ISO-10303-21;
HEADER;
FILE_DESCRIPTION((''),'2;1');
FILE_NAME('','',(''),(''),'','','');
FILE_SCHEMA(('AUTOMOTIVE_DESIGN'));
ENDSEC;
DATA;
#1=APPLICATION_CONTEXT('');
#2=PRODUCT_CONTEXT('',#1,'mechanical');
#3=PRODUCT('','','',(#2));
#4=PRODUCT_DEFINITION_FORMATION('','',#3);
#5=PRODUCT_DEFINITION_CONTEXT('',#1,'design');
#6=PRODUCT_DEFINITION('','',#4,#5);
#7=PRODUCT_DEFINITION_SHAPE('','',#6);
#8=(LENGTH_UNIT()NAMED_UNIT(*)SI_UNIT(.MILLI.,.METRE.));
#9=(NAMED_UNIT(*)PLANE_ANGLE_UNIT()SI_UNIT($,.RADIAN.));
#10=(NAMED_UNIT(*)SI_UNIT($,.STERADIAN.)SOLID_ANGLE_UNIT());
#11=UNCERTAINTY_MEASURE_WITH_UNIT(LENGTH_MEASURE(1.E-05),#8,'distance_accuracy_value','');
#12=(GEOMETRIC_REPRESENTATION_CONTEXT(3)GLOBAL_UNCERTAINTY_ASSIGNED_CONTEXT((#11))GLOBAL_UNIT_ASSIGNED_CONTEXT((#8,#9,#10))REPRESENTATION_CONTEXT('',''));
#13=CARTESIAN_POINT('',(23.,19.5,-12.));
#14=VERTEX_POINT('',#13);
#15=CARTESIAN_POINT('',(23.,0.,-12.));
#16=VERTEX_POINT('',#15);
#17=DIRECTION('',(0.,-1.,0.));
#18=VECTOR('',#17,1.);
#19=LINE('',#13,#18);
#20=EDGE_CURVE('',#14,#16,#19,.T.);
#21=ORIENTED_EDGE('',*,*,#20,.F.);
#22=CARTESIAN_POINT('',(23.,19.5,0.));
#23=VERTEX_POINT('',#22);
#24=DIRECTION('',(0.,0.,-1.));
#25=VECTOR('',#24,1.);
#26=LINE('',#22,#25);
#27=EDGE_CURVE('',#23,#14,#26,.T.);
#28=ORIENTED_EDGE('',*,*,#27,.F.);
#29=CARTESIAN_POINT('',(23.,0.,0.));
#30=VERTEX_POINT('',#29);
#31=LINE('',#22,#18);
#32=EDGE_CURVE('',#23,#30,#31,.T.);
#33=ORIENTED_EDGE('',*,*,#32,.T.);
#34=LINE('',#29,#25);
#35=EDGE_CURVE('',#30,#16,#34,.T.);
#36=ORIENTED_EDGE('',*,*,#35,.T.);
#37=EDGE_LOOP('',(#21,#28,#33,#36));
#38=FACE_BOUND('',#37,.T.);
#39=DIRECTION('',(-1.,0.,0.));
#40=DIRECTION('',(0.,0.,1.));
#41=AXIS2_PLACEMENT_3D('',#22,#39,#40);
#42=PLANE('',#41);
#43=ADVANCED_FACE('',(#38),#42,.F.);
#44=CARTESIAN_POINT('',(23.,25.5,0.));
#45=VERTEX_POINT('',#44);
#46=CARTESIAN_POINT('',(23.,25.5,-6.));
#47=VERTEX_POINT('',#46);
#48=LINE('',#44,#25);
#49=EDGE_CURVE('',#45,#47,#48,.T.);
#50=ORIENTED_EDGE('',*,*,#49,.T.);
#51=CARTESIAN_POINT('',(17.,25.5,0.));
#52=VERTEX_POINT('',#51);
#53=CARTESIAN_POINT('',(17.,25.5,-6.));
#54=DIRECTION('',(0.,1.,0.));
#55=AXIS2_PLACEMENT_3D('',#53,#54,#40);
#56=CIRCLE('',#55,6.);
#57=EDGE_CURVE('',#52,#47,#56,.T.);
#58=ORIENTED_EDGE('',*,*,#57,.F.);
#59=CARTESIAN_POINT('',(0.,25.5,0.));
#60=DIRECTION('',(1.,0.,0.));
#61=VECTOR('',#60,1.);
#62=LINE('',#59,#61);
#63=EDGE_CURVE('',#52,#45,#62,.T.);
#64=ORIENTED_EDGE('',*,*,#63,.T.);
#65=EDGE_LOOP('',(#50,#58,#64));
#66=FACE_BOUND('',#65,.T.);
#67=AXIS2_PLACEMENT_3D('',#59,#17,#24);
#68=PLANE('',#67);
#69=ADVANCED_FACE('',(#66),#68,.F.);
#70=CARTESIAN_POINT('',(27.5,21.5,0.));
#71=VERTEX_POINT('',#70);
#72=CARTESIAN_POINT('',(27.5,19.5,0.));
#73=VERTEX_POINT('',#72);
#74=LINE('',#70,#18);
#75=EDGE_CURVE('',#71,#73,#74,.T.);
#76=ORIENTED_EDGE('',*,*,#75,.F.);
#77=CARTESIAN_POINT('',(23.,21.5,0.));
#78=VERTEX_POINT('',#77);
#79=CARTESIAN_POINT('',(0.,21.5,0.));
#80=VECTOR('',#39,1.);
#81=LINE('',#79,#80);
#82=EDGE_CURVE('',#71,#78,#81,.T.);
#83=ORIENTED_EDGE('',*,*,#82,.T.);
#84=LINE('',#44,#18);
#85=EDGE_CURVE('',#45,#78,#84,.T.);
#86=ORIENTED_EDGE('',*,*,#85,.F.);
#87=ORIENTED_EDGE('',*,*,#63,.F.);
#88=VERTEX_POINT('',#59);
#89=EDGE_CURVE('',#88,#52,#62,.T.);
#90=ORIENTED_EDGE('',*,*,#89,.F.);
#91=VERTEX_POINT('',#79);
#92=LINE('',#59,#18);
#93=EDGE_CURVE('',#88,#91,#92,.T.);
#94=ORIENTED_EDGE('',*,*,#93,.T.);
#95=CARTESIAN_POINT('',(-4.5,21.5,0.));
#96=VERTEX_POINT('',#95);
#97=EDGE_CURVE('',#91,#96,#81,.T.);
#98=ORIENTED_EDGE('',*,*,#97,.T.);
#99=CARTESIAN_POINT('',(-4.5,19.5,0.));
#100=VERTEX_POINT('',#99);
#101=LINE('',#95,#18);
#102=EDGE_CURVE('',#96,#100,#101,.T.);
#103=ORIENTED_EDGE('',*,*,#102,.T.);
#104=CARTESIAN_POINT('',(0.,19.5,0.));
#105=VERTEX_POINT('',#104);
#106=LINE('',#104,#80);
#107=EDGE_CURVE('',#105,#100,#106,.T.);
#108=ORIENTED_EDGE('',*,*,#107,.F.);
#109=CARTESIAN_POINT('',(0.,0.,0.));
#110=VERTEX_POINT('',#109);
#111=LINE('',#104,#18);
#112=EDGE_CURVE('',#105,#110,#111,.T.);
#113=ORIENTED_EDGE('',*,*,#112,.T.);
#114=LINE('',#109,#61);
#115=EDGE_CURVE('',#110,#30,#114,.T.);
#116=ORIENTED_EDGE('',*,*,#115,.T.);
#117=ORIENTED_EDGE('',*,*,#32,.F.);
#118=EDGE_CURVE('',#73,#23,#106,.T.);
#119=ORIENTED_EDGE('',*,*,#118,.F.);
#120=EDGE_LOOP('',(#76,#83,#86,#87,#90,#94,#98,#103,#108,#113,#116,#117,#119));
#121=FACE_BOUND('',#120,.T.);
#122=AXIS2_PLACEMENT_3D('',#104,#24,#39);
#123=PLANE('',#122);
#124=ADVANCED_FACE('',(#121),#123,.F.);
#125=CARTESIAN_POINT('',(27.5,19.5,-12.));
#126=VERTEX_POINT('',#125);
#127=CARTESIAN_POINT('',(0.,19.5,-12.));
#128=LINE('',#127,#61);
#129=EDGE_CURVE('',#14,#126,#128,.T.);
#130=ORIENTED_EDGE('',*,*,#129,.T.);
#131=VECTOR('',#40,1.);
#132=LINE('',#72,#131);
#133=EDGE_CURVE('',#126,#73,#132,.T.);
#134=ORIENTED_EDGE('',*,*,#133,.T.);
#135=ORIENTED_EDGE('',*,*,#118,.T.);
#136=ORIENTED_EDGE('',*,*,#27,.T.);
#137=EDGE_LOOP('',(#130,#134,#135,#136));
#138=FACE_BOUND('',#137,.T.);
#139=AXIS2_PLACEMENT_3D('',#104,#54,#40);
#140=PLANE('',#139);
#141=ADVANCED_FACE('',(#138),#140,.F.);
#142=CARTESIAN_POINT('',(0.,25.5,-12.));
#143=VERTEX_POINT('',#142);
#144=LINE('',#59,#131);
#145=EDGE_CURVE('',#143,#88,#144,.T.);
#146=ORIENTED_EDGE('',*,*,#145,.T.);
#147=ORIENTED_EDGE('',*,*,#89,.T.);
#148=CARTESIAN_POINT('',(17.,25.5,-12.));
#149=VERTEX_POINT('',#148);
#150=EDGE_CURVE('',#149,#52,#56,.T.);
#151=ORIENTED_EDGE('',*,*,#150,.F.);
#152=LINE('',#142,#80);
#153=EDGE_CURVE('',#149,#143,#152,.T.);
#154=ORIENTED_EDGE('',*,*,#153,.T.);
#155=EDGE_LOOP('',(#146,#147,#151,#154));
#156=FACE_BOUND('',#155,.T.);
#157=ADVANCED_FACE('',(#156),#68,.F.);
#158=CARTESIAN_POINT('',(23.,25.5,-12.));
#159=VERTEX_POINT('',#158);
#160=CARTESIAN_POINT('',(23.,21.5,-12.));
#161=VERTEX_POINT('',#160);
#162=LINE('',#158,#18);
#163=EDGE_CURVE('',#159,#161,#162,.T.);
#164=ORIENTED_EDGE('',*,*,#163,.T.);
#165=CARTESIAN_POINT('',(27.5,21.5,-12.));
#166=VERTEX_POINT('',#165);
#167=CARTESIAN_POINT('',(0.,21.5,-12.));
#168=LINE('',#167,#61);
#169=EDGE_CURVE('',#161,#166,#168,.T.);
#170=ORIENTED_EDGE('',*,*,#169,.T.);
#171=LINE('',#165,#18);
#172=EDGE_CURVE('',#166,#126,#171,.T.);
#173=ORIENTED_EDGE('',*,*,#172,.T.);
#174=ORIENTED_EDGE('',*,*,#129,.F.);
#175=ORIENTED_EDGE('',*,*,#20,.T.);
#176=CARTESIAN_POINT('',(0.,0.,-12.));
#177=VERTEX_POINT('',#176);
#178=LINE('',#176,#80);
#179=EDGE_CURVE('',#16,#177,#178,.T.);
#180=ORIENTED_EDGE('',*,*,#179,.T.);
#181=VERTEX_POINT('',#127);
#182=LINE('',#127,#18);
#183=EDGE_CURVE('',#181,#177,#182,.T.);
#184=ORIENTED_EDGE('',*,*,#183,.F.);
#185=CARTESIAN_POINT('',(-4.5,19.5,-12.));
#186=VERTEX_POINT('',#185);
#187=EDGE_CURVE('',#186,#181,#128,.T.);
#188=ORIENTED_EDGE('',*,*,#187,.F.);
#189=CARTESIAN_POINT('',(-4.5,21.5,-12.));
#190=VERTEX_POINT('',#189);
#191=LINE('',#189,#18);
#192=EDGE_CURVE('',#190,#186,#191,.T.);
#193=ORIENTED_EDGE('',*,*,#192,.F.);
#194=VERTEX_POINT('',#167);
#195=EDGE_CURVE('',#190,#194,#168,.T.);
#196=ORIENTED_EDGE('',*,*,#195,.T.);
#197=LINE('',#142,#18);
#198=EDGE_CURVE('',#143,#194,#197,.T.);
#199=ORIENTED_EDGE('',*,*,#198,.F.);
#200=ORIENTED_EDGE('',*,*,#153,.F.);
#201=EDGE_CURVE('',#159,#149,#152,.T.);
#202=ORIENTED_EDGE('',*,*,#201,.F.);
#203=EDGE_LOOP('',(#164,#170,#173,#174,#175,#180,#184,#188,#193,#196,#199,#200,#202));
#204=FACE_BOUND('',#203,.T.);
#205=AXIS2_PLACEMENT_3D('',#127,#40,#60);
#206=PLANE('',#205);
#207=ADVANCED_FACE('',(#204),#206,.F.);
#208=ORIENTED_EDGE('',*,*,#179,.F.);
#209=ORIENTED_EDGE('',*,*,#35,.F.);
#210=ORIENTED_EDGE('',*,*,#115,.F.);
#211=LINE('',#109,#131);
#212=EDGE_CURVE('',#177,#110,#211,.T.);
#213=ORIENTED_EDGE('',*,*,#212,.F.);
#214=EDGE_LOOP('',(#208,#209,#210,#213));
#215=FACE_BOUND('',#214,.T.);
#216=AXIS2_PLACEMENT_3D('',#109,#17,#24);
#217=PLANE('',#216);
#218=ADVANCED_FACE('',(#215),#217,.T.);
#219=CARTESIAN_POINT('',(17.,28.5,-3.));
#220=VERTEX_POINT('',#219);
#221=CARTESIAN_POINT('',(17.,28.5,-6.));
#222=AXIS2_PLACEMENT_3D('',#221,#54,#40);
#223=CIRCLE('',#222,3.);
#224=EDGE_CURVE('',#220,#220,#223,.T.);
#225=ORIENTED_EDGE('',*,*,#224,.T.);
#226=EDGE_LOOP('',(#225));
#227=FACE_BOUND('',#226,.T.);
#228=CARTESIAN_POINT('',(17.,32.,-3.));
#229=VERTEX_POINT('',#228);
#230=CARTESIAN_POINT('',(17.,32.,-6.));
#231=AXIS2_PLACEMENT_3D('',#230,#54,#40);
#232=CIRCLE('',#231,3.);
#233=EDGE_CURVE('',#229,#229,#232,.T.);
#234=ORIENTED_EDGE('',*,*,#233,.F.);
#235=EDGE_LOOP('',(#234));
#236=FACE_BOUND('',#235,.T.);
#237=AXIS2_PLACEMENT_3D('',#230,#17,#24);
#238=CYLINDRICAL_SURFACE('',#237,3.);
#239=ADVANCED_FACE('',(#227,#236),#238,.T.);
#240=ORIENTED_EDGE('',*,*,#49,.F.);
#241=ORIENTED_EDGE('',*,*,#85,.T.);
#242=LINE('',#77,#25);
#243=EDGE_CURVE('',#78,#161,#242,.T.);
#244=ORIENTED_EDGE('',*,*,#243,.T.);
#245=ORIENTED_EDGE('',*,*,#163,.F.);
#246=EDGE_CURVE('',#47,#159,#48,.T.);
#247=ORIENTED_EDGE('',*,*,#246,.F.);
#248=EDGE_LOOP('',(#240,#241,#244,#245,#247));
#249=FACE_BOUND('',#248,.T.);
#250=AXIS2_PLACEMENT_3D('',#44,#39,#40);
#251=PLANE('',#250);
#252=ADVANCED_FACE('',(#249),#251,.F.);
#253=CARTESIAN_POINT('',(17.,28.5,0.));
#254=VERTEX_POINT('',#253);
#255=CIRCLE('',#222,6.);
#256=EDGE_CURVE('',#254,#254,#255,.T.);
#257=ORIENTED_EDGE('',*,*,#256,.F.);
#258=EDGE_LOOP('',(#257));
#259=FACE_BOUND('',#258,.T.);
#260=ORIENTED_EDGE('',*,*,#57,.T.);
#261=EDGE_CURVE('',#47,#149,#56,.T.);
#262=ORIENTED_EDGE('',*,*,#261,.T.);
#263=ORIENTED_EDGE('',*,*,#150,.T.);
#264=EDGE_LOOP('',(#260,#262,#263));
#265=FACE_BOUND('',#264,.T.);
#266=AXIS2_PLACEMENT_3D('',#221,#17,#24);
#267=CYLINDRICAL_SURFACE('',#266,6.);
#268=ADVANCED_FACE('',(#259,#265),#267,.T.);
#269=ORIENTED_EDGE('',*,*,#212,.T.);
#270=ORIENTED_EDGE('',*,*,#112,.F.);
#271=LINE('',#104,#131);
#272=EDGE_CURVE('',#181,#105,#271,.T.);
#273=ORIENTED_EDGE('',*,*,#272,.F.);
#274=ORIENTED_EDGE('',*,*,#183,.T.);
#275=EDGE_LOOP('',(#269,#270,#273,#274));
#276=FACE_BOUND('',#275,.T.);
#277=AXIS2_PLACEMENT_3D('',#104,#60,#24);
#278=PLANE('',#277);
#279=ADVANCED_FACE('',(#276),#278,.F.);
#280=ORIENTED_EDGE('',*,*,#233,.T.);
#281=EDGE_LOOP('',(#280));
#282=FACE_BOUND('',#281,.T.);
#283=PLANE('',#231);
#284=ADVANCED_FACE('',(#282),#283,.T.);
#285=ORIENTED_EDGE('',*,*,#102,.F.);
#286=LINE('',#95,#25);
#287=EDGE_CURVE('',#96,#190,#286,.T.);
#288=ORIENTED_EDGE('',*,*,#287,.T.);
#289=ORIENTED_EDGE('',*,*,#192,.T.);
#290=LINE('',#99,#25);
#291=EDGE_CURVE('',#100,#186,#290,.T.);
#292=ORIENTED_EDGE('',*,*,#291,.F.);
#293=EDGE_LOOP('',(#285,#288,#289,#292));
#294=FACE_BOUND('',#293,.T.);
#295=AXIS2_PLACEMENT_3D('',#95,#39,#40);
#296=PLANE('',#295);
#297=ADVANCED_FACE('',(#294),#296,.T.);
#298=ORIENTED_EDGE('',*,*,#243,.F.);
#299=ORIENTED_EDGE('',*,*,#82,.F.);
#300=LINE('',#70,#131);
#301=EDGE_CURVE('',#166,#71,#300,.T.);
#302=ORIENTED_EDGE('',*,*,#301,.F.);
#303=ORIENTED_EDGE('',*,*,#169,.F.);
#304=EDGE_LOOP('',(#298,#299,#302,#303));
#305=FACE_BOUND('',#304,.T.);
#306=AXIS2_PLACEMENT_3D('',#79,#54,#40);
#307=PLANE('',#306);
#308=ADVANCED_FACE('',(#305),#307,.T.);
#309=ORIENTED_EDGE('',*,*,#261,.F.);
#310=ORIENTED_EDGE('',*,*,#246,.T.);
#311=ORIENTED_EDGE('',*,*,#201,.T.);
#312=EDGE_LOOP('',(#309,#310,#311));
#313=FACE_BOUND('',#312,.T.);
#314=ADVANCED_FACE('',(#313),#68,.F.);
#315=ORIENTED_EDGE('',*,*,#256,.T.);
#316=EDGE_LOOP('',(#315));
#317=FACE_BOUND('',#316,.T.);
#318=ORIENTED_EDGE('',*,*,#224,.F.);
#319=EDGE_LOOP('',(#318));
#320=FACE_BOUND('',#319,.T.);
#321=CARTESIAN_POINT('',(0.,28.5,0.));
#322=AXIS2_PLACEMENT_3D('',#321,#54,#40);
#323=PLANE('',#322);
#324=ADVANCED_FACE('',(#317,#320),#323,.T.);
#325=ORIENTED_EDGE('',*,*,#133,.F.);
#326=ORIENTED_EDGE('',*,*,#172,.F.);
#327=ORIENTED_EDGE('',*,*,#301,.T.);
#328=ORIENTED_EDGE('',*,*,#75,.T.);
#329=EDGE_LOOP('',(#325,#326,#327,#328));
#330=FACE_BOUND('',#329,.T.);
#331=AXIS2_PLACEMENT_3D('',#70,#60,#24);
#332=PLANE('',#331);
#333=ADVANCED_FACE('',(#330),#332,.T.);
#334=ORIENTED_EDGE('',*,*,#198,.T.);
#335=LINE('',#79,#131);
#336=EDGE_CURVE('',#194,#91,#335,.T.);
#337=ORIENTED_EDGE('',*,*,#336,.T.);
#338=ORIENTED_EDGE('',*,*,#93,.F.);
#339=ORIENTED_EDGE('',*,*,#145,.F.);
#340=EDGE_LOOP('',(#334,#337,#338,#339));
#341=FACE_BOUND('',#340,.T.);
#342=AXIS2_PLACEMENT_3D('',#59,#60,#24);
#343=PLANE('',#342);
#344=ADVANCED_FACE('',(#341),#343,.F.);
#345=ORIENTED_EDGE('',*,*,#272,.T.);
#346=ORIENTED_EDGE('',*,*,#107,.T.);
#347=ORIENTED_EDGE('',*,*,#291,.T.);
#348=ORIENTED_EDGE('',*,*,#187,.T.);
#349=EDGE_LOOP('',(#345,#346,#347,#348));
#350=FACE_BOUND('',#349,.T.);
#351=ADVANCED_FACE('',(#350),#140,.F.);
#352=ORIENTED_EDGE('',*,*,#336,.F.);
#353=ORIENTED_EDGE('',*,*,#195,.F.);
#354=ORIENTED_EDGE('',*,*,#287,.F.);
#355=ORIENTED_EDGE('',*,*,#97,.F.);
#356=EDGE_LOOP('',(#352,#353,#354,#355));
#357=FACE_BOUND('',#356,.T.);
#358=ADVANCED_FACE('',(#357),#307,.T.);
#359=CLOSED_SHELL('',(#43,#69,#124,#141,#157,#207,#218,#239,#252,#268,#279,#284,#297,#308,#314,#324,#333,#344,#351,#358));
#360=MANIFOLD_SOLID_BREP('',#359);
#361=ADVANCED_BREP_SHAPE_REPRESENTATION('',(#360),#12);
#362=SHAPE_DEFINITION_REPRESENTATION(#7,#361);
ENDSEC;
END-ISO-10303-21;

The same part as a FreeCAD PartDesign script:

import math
import FreeCAD as App
import Part
import Sketcher

V = App.Vector

doc = App.newDocument("Part")
body = doc.addObject("PartDesign::Body", "Body")

# Sketch on XZ plane
sketch1 = doc.addObject("Sketcher::SketchObject", "Sketch")
body.addObject(sketch1)
sketch1.AttachmentSupport = (doc.XZ_Plane, [""])
sketch1.MapMode = "FlatFace"
sketch1.addGeometry([
    Part.LineSegment(V(0, -12, 0), V(0, 0, 0)),
    Part.LineSegment(V(0, 0, 0), V(23, 0, 0)),
    Part.LineSegment(V(23, 0, 0), V(23, -12, 0)),
    Part.LineSegment(V(23, -12, 0), V(0, -12, 0)),
], False)
sketch1.addConstraint([
    Sketcher.Constraint("Coincident", 0, 2, 1, 1),
    Sketcher.Constraint("Coincident", 1, 2, 2, 1),
    Sketcher.Constraint("Coincident", 2, 2, 3, 1),
    Sketcher.Constraint("Coincident", 3, 2, 0, 1),
    Sketcher.Constraint("Vertical", 0),
    Sketcher.Constraint("Horizontal", 1),
    Sketcher.Constraint("Vertical", 2),
    Sketcher.Constraint("Horizontal", 3),
    Sketcher.Constraint("Coincident", 0, 2, -1, 1),
    Sketcher.Constraint("DistanceX", 1, 1, 1, 2, 23.0),
    Sketcher.Constraint("DistanceY", 0, 1, 0, 2, 12.0),
])
pad1 = doc.addObject("PartDesign::Pad", "Pad")
body.addObject(pad1)
pad1.Profile = sketch1
pad1.Length = 19.5
pad1.Reversed = True

# Sketch on XZ plane
sketch2 = doc.addObject("Sketcher::SketchObject", "Sketch001")
body.addObject(sketch2)
sketch2.AttachmentSupport = (doc.XZ_Plane, [""])
sketch2.MapMode = "FlatFace"
sketch2.AttachmentOffset = App.Placement(V(0, 0, -19.5), App.Rotation())
sketch2.addGeometry([
    Part.LineSegment(V(-4, -12, 0), V(-4, 0, 0)),
    Part.LineSegment(V(-4, 0, 0), V(28, 0, 0)),
    Part.LineSegment(V(28, 0, 0), V(28, -12, 0)),
    Part.LineSegment(V(28, -12, 0), V(-4, -12, 0)),
], False)
sketch2.addConstraint([
    Sketcher.Constraint("Coincident", 0, 2, 1, 1),
    Sketcher.Constraint("Coincident", 1, 2, 2, 1),
    Sketcher.Constraint("Coincident", 2, 2, 3, 1),
    Sketcher.Constraint("Coincident", 3, 2, 0, 1),
    Sketcher.Constraint("Vertical", 0),
    Sketcher.Constraint("Horizontal", 1),
    Sketcher.Constraint("Vertical", 2),
    Sketcher.Constraint("Horizontal", 3),
    Sketcher.Constraint("PointOnObject", 0, 2, -1),
    Sketcher.Constraint("DistanceX", 1, 1, 1, 2, 32.0),
    Sketcher.Constraint("DistanceY", 0, 1, 0, 2, 12.0),
    Sketcher.Constraint("DistanceX", 0, 2, -1, 1, 4.5),
])
pad2 = doc.addObject("PartDesign::Pad", "Pad001")
body.addObject(pad2)
pad2.Profile = sketch2
pad2.Length = 2
pad2.Reversed = True

# Sketch on XZ plane
sketch3 = doc.addObject("Sketcher::SketchObject", "Sketch002")
body.addObject(sketch3)
sketch3.AttachmentSupport = (doc.XZ_Plane, [""])
sketch3.MapMode = "FlatFace"
sketch3.AttachmentOffset = App.Placement(V(0, 0, -21.5), App.Rotation())
sketch3.addGeometry([
    Part.LineSegment(V(0, -12, 0), V(0, 0, 0)),
    Part.LineSegment(V(0, 0, 0), V(23, 0, 0)),
    Part.LineSegment(V(23, 0, 0), V(23, -12, 0)),
    Part.LineSegment(V(23, -12, 0), V(0, -12, 0)),
], False)
sketch3.addConstraint([
    Sketcher.Constraint("Coincident", 0, 2, 1, 1),
    Sketcher.Constraint("Coincident", 1, 2, 2, 1),
    Sketcher.Constraint("Coincident", 2, 2, 3, 1),
    Sketcher.Constraint("Coincident", 3, 2, 0, 1),
    Sketcher.Constraint("Vertical", 0),
    Sketcher.Constraint("Horizontal", 1),
    Sketcher.Constraint("Vertical", 2),
    Sketcher.Constraint("Horizontal", 3),
    Sketcher.Constraint("Coincident", 0, 2, -1, 1),
    Sketcher.Constraint("DistanceX", 1, 1, 1, 2, 23.0),
    Sketcher.Constraint("DistanceY", 0, 1, 0, 2, 12.0),
])
pad3 = doc.addObject("PartDesign::Pad", "Pad002")
body.addObject(pad3)
pad3.Profile = sketch3
pad3.Length = 4
pad3.Reversed = True

# Sketch on XZ plane
sketch4 = doc.addObject("Sketcher::SketchObject", "Sketch003")
body.addObject(sketch4)
sketch4.AttachmentSupport = (doc.XZ_Plane, [""])
sketch4.MapMode = "FlatFace"
sketch4.AttachmentOffset = App.Placement(V(0, 0, -25.5), App.Rotation())
sketch4.addGeometry([
    Part.ArcOfCircle(Part.Circle(V(17, -6, 0), V(0, 0, 1), 6), math.radians(0), math.radians(90)),  # 0
    Part.ArcOfCircle(Part.Circle(V(17, -6, 0), V(0, 0, 1), 6), math.radians(-45), math.radians(0)),  # 1
    Part.ArcOfCircle(Part.Circle(V(17, -6, 0), V(0, 0, 1), 6), math.radians(-90), math.radians(-45)),  # 2
    Part.ArcOfCircle(Part.Circle(V(17, -6, 0), V(0, 0, 1), 6), math.radians(180), math.radians(270)),  # 3
    Part.ArcOfCircle(Part.Circle(V(17, -6, 0), V(0, 0, 1), 6), math.radians(135), math.radians(180)),  # 4
    Part.ArcOfCircle(Part.Circle(V(17, -6, 0), V(0, 0, 1), 6), math.radians(90), math.radians(135)),  # 5
], False)
sketch4.addConstraint([
    Sketcher.Constraint("Tangent", 0, 1, 1, 2),
    Sketcher.Constraint("Tangent", 1, 1, 2, 2),
    Sketcher.Constraint("Tangent", 2, 1, 3, 2),
    Sketcher.Constraint("Tangent", 3, 1, 4, 2),
    Sketcher.Constraint("Tangent", 4, 1, 5, 2),
    Sketcher.Constraint("Tangent", 5, 1, 0, 2),
    Sketcher.Constraint("Coincident", 2, 3, 0, 3),
    Sketcher.Constraint("Equal", 2, 3),
    Sketcher.Constraint("PointOnObject", 5, 1, -1),
    Sketcher.Constraint("Horizontal", 5, 3, 0, 1),
    Sketcher.Constraint("Horizontal", 0, 1, 3, 1),
    Sketcher.Constraint("Vertical", 5, 3, 2, 1),
    Sketcher.Constraint("Vertical", 2, 1, 5, 1),
    Sketcher.Constraint("Radius", 0, 6.0),
    Sketcher.Constraint("DistanceX", -1, 1, 0, 3, 17.0),
    Sketcher.Constraint("DistanceX", -1, 1, 1, 1, 21.242641),
    Sketcher.Constraint("DistanceX", -1, 1, 4, 1, 12.757359),
])
pad4 = doc.addObject("PartDesign::Pad", "Pad003")
body.addObject(pad4)
pad4.Profile = sketch4
pad4.Length = 3
pad4.Reversed = True

# Sketch on XZ plane
sketch5 = doc.addObject("Sketcher::SketchObject", "Sketch004")
body.addObject(sketch5)
sketch5.AttachmentSupport = (doc.XZ_Plane, [""])
sketch5.MapMode = "FlatFace"
sketch5.AttachmentOffset = App.Placement(V(0, 0, -28.5), App.Rotation())
sketch5.addGeometry(Part.Circle(V(17, -6, 0), V(0, 0, 1), 3), False)
sketch5.addConstraint([
    Sketcher.Constraint("Diameter", 0, 6.0),
    Sketcher.Constraint("DistanceX", -1, 1, 0, 3, 17.0),
    Sketcher.Constraint("DistanceY", 0, 3, -1, 1, 6.0),
])
pad5 = doc.addObject("PartDesign::Pad", "Pad004")
body.addObject(pad5)
pad5.Profile = sketch5
pad5.Length = 3.5
pad5.Reversed = True

doc.recompute()
